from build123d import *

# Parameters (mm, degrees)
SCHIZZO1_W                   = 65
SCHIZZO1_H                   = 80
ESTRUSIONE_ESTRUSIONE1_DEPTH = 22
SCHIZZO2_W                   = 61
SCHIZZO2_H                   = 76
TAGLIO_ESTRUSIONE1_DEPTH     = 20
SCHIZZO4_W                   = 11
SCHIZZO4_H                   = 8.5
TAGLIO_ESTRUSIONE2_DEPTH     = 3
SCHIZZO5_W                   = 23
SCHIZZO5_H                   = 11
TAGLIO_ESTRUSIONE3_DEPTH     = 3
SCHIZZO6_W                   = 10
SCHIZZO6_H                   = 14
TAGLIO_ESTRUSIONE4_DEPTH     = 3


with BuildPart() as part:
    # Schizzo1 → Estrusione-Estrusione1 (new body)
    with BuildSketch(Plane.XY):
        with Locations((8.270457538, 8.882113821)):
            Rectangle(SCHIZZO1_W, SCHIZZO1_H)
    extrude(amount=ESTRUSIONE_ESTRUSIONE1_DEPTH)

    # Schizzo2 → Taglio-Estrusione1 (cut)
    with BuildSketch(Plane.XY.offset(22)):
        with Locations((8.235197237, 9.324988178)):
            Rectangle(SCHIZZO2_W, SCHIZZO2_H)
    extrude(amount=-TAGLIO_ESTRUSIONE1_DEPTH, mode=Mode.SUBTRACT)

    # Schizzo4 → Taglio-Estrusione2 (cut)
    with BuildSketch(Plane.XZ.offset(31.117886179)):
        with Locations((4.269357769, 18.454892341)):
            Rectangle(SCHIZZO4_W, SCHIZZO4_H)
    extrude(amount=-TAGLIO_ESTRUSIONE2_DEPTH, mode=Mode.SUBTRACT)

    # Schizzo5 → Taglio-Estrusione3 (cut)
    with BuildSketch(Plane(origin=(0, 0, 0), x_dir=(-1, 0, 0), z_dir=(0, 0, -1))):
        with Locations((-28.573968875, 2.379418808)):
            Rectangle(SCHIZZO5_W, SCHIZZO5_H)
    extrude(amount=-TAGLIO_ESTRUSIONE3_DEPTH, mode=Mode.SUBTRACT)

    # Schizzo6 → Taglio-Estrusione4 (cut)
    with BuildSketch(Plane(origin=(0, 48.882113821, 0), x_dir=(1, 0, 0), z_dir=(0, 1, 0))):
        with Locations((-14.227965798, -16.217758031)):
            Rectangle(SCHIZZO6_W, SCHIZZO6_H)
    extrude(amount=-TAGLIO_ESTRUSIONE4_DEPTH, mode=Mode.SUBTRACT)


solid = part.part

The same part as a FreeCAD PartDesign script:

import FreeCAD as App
import Part
import Sketcher
from FreeCAD import Vector
Q = App.Units.Quantity

doc = App.newDocument("Part")
body = doc.addObject("PartDesign::Body", "Body")

sketch1 = body.newObject("Sketcher::SketchObject", "Sketch")
sketch1.AttachmentSupport = (doc.getObject("XY_Plane"), [""])
sketch1.MapMode = "FlatFace"
sketch1.addGeometry(Part.LineSegment(Vector(-24.229542, 48.882114, 0), Vector(-24.229542, -31.117886, 0)), False)
sketch1.addGeometry(Part.LineSegment(Vector(-24.229542, -31.117886, 0), Vector(40.770458, -31.117886, 0)), False)
sketch1.addGeometry(Part.LineSegment(Vector(40.770458, -31.117886, 0), Vector(40.770458, 48.882114, 0)), False)
sketch1.addGeometry(Part.LineSegment(Vector(40.770458, 48.882114, 0), Vector(-24.229542, 48.882114, 0)), False)
sketch1.addConstraint(Sketcher.Constraint("Coincident", 0, 2, 1, 1))
sketch1.addConstraint(Sketcher.Constraint("Coincident", 1, 2, 2, 1))
sketch1.addConstraint(Sketcher.Constraint("Coincident", 2, 2, 3, 1))
sketch1.addConstraint(Sketcher.Constraint("Coincident", 3, 2, 0, 1))
sketch1.addConstraint(Sketcher.Constraint("Vertical", 0))
sketch1.addConstraint(Sketcher.Constraint("Horizontal", 1))
sketch1.addConstraint(Sketcher.Constraint("Vertical", 2))
sketch1.addConstraint(Sketcher.Constraint("Horizontal", 3))
sketch1.addConstraint(Sketcher.Constraint("DistanceX", 1, 1, 1, 2, Q("65 mm")))
sketch1.addConstraint(Sketcher.Constraint("DistanceY", 0, 2, 0, 1, Q("80 mm")))
sketch1.addConstraint(Sketcher.Constraint("DistanceX", 0, 2, -1, 1, Q("24.229542 mm")))
sketch1.addConstraint(Sketcher.Constraint("DistanceY", 0, 2, -1, 1, Q("31.117886 mm")))
pad1 = body.newObject("PartDesign::Pad", "Pad")
pad1.Profile = sketch1
pad1.Length = 22

sketch2 = body.newObject("Sketcher::SketchObject", "Sketch001")
sketch2.AttachmentSupport = (doc.getObject("XY_Plane"), [""])
sketch2.MapMode = "FlatFace"
sketch2.AttachmentOffset = App.Placement(Vector(0, 0, 22), App.Rotation())
sketch2.addGeometry(Part.LineSegment(Vector(-22.264803, 47.324988, 0), Vector(-22.264803, -28.675012, 0)), False)
sketch2.addGeometry(Part.LineSegment(Vector(-22.264803, -28.675012, 0), Vector(38.735197, -28.675012, 0)), False)
sketch2.addGeometry(Part.LineSegment(Vector(38.735197, -28.675012, 0), Vector(38.735197, 47.324988, 0)), False)
sketch2.addGeometry(Part.LineSegment(Vector(38.735197, 47.324988, 0), Vector(-22.264803, 47.324988, 0)), False)
sketch2.addConstraint(Sketcher.Constraint("Coincident", 0, 2, 1, 1))
sketch2.addConstraint(Sketcher.Constraint("Coincident", 1, 2, 2, 1))
sketch2.addConstraint(Sketcher.Constraint("Coincident", 2, 2, 3, 1))
sketch2.addConstraint(Sketcher.Constraint("Coincident", 3, 2, 0, 1))
sketch2.addConstraint(Sketcher.Constraint("Vertical", 0))
sketch2.addConstraint(Sketcher.Constraint("Horizontal", 1))
sketch2.addConstraint(Sketcher.Constraint("Vertical", 2))
sketch2.addConstraint(Sketcher.Constraint("Horizontal", 3))
sketch2.addConstraint(Sketcher.Constraint("DistanceX", 1, 1, 1, 2, Q("61 mm")))
sketch2.addConstraint(Sketcher.Constraint("DistanceY", 0, 2, 0, 1, Q("76 mm")))
sketch2.addConstraint(Sketcher.Constraint("DistanceY", 0, 2, -1, 1, Q("28.675012 mm")))
sketch2.addConstraint(Sketcher.Constraint("DistanceX", 0, 2, -1, 1, Q("22.264803 mm")))
pocket1 = body.newObject("PartDesign::Pocket", "Pocket")
pocket1.Profile = sketch2
pocket1.Length = 20

sketch3 = body.newObject("Sketcher::SketchObject", "Sketch002")
sketch3.AttachmentSupport = (doc.getObject("XZ_Plane"), [""])
sketch3.MapMode = "FlatFace"
sketch3.AttachmentOffset = App.Placement(Vector(0, 0, 31.117886), App.Rotation())
sketch3.addGeometry(Part.LineSegment(Vector(-1.230642, 22.704892, 0), Vector(-1.230642, 14.204892, 0)), False)
sketch3.addGeometry(Part.LineSegment(Vector(-1.230642, 14.204892, 0), Vector(9.769358, 14.204892, 0)), False)
sketch3.addGeometry(Part.LineSegment(Vector(9.769358, 14.204892, 0), Vector(9.769358, 22.704892, 0)), False)
sketch3.addGeometry(Part.LineSegment(Vector(9.769358, 22.704892, 0), Vector(-1.230642, 22.704892, 0)), False)
sketch3.addConstraint(Sketcher.Constraint("Coincident", 0, 2, 1, 1))
sketch3.addConstraint(Sketcher.Constraint("Coincident", 1, 2, 2, 1))
sketch3.addConstraint(Sketcher.Constraint("Coincident", 2, 2, 3, 1))
sketch3.addConstraint(Sketcher.Constraint("Coincident", 3, 2, 0, 1))
sketch3.addConstraint(Sketcher.Constraint("Vertical", 0))
sketch3.addConstraint(Sketcher.Constraint("Horizontal", 1))
sketch3.addConstraint(Sketcher.Constraint("Vertical", 2))
sketch3.addConstraint(Sketcher.Constraint("Horizontal", 3))
sketch3.addConstraint(Sketcher.Constraint("DistanceX", 1, 1, 1, 2, Q("11 mm")))
sketch3.addConstraint(Sketcher.Constraint("DistanceY", 0, 2, 0, 1, Q("8.5 mm")))
sketch3.addConstraint(Sketcher.Constraint("DistanceX", 0, 2, -1, 1, Q("1.230642 mm")))
sketch3.addConstraint(Sketcher.Constraint("DistanceY", -1, 1, 0, 2, Q("14.204892 mm")))
pocket2 = body.newObject("PartDesign::Pocket", "Pocket001")
pocket2.Profile = sketch3
pocket2.Length = 3

sketch4 = body.newObject("Sketcher::SketchObject", "Sketch003")
sketch4.AttachmentSupport = (doc.getObject("XY_Plane"), [""])
sketch4.MapMode = "FlatFace"
sketch4.addGeometry(Part.LineSegment(Vector(40.073969, 7.879419, 0), Vector(40.073969, -3.120581, 0)), False)
sketch4.addGeometry(Part.LineSegment(Vector(40.073969, -3.120581, 0), Vector(17.073969, -3.120581, 0)), False)
sketch4.addGeometry(Part.LineSegment(Vector(17.073969, -3.120581, 0), Vector(17.073969, 7.879419, 0)), False)
sketch4.addGeometry(Part.LineSegment(Vector(17.073969, 7.879419, 0), Vector(40.073969, 7.879419, 0)), False)
sketch4.addConstraint(Sketcher.Constraint("Coincident", 0, 2, 1, 1))
sketch4.addConstraint(Sketcher.Constraint("Coincident", 1, 2, 2, 1))
sketch4.addConstraint(Sketcher.Constraint("Coincident", 2, 2, 3, 1))
sketch4.addConstraint(Sketcher.Constraint("Coincident", 3, 2, 0, 1))
sketch4.addConstraint(Sketcher.Constraint("Vertical", 0))
sketch4.addConstraint(Sketcher.Constraint("Horizontal", 1))
sketch4.addConstraint(Sketcher.Constraint("Vertical", 2))
sketch4.addConstraint(Sketcher.Constraint("Horizontal", 3))
sketch4.addConstraint(Sketcher.Constraint("DistanceX", 1, 2, 1, 1, Q("23 mm")))
sketch4.addConstraint(Sketcher.Constraint("DistanceY", 0, 2, 0, 1, Q("11 mm")))
sketch4.addConstraint(Sketcher.Constraint("DistanceX", -1, 1, 0, 2, Q("40.073969 mm")))
sketch4.addConstraint(Sketcher.Constraint("DistanceY", 0, 2, -1, 1, Q("3.120581 mm")))
pocket3 = body.newObject("PartDesign::Pocket", "Pocket002")
pocket3.Profile = sketch4
pocket3.Length = 3
pocket3.Reversed = True

sketch5 = body.newObject("Sketcher::SketchObject", "Sketch004")
sketch5.AttachmentSupport = (doc.getObject("XZ_Plane"), [""])
sketch5.MapMode = "FlatFace"
sketch5.AttachmentOffset = App.Placement(Vector(0, 0, -48.882114), App.Rotation())
sketch5.addGeometry(Part.LineSegment(Vector(-19.227966, 9.217758, 0), Vector(-19.227966, 23.217758, 0)), False)
sketch5.addGeometry(Part.LineSegment(Vector(-19.227966, 23.217758, 0), Vector(-9.227966, 23.217758, 0)), False)
sketch5.addGeometry(Part.LineSegment(Vector(-9.227966, 23.217758, 0), Vector(-9.227966, 9.217758, 0)), False)
sketch5.addGeometry(Part.LineSegment(Vector(-9.227966, 9.217758, 0), Vector(-19.227966, 9.217758, 0)), False)
sketch5.addConstraint(Sketcher.Constraint("Coincident", 0, 2, 1, 1))
sketch5.addConstraint(Sketcher.Constraint("Coincident", 1, 2, 2, 1))
sketch5.addConstraint(Sketcher.Constraint("Coincident", 2, 2, 3, 1))
sketch5.addConstraint(Sketcher.Constraint("Coincident", 3, 2, 0, 1))
sketch5.addConstraint(Sketcher.Constraint("Vertical", 0))
sketch5.addConstraint(Sketcher.Constraint("Horizontal", 1))
sketch5.addConstraint(Sketcher.Constraint("Vertical", 2))
sketch5.addConstraint(Sketcher.Constraint("Horizontal", 3))
sketch5.addConstraint(Sketcher.Constraint("DistanceX", 1, 1, 1, 2, Q("10 mm")))
sketch5.addConstraint(Sketcher.Constraint("DistanceY", 0, 1, 0, 2, Q("14 mm")))
sketch5.addConstraint(Sketcher.Constraint("DistanceY", -1, 1, 0, 2, Q("23.217758 mm")))
sketch5.addConstraint(Sketcher.Constraint("DistanceX", 0, 2, -1, 1, Q("19.227966 mm")))
pocket4 = body.newObject("PartDesign::Pocket", "Pocket003")
pocket4.Profile = sketch5
pocket4.Length = 3
pocket4.Reversed = True

doc.recompute()
